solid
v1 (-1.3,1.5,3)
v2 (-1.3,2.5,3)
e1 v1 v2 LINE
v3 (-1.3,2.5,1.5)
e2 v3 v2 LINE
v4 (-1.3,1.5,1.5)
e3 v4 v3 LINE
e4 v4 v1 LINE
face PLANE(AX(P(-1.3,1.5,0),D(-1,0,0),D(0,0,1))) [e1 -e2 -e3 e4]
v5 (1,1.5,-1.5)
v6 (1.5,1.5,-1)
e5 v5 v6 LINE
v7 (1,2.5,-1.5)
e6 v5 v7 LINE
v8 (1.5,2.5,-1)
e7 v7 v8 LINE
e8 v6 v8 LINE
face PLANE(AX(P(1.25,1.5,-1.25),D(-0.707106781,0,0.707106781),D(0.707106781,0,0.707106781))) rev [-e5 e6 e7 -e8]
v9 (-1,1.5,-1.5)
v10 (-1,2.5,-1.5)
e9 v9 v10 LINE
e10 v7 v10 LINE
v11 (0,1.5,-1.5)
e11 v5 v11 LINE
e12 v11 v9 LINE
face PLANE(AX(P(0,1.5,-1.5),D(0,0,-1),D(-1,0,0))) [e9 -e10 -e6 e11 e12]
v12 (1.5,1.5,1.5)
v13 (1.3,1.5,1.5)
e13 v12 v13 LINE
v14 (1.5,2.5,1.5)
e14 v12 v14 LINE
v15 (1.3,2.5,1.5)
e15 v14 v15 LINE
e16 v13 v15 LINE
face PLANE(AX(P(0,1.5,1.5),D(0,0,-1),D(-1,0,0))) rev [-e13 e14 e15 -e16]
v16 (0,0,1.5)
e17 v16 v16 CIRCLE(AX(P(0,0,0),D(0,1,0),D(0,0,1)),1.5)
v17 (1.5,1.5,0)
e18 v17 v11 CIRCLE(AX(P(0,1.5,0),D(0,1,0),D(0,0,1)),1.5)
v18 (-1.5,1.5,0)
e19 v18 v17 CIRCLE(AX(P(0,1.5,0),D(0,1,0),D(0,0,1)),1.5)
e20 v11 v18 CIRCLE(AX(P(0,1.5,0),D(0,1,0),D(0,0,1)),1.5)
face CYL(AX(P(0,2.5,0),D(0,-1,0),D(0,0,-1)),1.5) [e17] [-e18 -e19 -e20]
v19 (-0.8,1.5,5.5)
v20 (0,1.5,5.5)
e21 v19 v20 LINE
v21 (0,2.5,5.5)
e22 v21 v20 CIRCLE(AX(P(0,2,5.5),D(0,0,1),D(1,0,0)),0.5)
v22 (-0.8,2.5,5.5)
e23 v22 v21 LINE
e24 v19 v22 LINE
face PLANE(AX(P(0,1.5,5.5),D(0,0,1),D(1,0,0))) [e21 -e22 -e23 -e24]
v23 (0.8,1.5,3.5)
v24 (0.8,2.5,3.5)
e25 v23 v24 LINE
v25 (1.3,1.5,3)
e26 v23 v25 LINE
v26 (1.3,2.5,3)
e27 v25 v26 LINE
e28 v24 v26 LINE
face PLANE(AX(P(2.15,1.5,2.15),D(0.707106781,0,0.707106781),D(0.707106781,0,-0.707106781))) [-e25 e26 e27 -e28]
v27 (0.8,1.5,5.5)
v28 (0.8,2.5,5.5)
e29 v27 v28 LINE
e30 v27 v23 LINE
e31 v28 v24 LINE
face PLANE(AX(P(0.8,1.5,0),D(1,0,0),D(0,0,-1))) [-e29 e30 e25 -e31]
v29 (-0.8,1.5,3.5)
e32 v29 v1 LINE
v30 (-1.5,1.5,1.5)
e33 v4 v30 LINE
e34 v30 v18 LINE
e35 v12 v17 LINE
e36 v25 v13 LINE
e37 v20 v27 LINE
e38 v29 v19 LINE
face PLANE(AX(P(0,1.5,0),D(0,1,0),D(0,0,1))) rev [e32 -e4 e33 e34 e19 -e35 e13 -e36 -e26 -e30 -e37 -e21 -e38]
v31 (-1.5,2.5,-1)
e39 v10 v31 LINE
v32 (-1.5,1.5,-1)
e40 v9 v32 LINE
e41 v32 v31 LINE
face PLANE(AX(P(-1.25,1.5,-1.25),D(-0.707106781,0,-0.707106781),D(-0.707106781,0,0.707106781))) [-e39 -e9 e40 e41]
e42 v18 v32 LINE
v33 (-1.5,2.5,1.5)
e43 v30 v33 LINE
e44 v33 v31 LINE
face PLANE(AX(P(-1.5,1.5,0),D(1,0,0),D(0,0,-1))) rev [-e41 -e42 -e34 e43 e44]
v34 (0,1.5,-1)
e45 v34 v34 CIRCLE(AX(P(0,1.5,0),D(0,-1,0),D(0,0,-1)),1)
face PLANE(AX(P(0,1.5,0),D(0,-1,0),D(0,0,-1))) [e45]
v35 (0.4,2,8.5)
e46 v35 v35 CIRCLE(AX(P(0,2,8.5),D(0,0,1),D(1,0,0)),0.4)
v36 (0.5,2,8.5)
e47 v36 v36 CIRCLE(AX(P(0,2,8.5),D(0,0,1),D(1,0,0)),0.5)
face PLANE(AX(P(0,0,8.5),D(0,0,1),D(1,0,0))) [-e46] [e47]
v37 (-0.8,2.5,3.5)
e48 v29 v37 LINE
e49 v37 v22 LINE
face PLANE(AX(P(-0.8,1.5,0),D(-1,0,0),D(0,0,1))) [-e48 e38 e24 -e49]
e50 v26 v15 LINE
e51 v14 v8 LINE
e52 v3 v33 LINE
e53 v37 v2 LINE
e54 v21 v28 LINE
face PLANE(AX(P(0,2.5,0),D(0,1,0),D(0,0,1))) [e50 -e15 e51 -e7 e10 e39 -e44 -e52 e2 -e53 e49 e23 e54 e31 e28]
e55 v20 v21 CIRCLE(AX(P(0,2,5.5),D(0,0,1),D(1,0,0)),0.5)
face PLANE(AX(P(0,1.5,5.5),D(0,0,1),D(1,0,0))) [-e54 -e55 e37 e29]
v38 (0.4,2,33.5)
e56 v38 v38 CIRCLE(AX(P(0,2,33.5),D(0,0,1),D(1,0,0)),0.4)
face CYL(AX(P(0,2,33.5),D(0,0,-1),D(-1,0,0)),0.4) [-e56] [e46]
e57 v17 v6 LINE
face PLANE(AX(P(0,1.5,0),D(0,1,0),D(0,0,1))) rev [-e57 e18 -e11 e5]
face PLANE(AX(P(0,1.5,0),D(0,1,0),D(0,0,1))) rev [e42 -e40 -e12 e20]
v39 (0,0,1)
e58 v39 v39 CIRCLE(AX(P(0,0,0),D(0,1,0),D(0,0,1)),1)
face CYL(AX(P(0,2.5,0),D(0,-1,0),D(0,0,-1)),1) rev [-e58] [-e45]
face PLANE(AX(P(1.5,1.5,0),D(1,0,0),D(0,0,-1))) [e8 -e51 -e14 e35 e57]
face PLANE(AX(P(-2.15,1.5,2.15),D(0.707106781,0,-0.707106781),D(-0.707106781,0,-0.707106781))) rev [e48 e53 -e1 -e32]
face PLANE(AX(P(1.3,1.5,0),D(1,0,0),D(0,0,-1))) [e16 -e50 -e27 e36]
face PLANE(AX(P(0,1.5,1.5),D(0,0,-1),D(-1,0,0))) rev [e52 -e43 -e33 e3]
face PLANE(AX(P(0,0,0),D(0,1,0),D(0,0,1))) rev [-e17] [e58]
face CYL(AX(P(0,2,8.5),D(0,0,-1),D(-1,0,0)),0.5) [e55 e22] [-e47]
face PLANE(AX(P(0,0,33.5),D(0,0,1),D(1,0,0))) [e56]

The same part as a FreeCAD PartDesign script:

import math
import FreeCAD as App
import Part
import Sketcher
from FreeCAD import Vector
Q = App.Units.Quantity


def add_polygon(sketch, points):
    """Adds a closed chain of lines whose ends are joined by coincident constraints."""
    first, n = sketch.GeometryCount, len(points)
    for a, b in zip(points, points[1:] + points[:1]):
        sketch.addGeometry(Part.LineSegment(App.Vector(*a, 0), App.Vector(*b, 0)), False)
    for i in range(n):
        sketch.addConstraint(Sketcher.Constraint("Coincident", first + i, 2, first + (i + 1) % n, 1))

doc = App.newDocument("Part")
params = doc.addObject("Spreadsheet::Sheet", "Params")
for row, (alias, value) in enumerate([
    ("sketch1_diameter", "3 mm"),
    ("sketch1_diameter2", "2 mm"),
    ("pad1_length", "2.5 mm"),
    ("sketch2_diameter", "2 mm"),
    ("sketch2_width", "2 mm"),
    ("sketch2_width2", "0.2 mm"),
    ("sketch2_height", "1.5 mm"),
    ("sketch2_height2", "2.5 mm"),
    ("pad2_length", "1 mm"),
    ("sketch3_diameter", "0.8 mm"),
    ("sketch3_radius", "0.5 mm"),
    ("pad3_length", "3 mm"),
    ("sketch4_diameter", "0.8 mm"),
    ("pad4_length", "28 mm"),
    ("sketch5_width", "2 mm"),
    ("sketch5_width2", "0.2 mm"),
    ("sketch5_height", "2.5 mm"),
    ("sketch5_height2", "1.5 mm"),
    ("pad5_length", "1 mm"),
], start=1):
    params.set(f"A{row}", alias)
    params.set(f"B{row}", "=" + value)
    params.setAlias(f"B{row}", alias)

body = doc.addObject("PartDesign::Body", "Body")

# Sketch on XZ plane
sketch1 = doc.addObject("Sketcher::SketchObject", "Sketch")
body.addObject(sketch1)
sketch1.AttachmentSupport = (doc.XZ_Plane, [""])
sketch1.MapMode = "FlatFace"
sketch1.addGeometry(Part.Circle(Vector(0, 0, 0), Vector(0, 0, 1), 1.5), False)
sketch1.addGeometry(Part.Circle(Vector(0, 0, 0), Vector(0, 0, 1), 1), False)
sketch1.addConstraint(Sketcher.Constraint("Coincident", 0, 3, -1, 1))
sketch1.addConstraint(Sketcher.Constraint("Coincident", 1, 3, -1, 1))
sketch1.addConstraint(Sketcher.Constraint("Diameter", 0, Q("3 mm")))
sketch1.addConstraint(Sketcher.Constraint("Diameter", 1, Q("2 mm")))
sketch1.setExpression("Constraints[2]", "Params.sketch1_diameter")
sketch1.setExpression("Constraints[3]", "Params.sketch1_diameter2")
pad1 = doc.addObject("PartDesign::Pad", "Pad")
body.addObject(pad1)
pad1.Profile = sketch1
pad1.setExpression("Length", "Params.pad1_length")
pad1.Reversed = True

# Sketch on XZ plane
sketch2 = doc.addObject("Sketcher::SketchObject", "Sketch001")
body.addObject(sketch2)
sketch2.AttachmentSupport = (doc.XZ_Plane, [""])
sketch2.MapMode = "FlatFace"
sketch2.AttachmentOffset = App.Placement(Vector(0, 0, -2.5), App.Rotation())
add_polygon(sketch2, [(-1.5, 1.5), (-1.3, 1.5), (-1.3, 3), (-0.8, 3.5), (-0.8, 5.5), (0.8, 5.5), (0.8, 3.5), (1.3, 3), (1.3, 1.5), (1.5, 1.5), (1.5, -1), (1, -1.5), (-1, -1.5), (-1.5, -1)])  # lines 0-13
sketch2.addGeometry(Part.Circle(Vector(0, 0, 0), Vector(0, 0, 1), 1), False)  # 14
sketch2.addConstraint(Sketcher.Constraint("Horizontal", 0))
sketch2.addConstraint(Sketcher.Constraint("Vertical", 1))
sketch2.addConstraint(Sketcher.Constraint("Vertical", 3))
sketch2.addConstraint(Sketcher.Constraint("Horizontal", 4))
sketch2.addConstraint(Sketcher.Constraint("Vertical", 5))
sketch2.addConstraint(Sketcher.Constraint("Vertical", 7))
sketch2.addConstraint(Sketcher.Constraint("Horizontal", 8))
sketch2.addConstraint(Sketcher.Constraint("Vertical", 9))
sketch2.addConstraint(Sketcher.Constraint("Horizontal", 11))
sketch2.addConstraint(Sketcher.Constraint("Vertical", 13))
sketch2.addConstraint(Sketcher.Constraint("Coincident", 14, 3, -1, 1))
sketch2.addConstraint(Sketcher.Constraint("Symmetric", 2, 2, 5, 2, -2))
sketch2.addConstraint(Sketcher.Constraint("Symmetric", 1, 2, 6, 2, -2))
sketch2.addConstraint(Sketcher.Constraint("Symmetric", 9, 2, 12, 2, -2))
sketch2.addConstraint(Sketcher.Constraint("Perpendicular", 2, 6))
sketch2.addConstraint(Sketcher.Constraint("Perpendicular", 6, 10))
sketch2.addConstraint(Sketcher.Constraint("Perpendicular", 10, 12))
sketch2.addConstraint(Sketcher.Constraint("Horizontal", 0, 2, 7, 2))
sketch2.addConstraint(Sketcher.Constraint("Equal", 11, 3))
sketch2.addConstraint(Sketcher.Constraint("Equal", 6, 10))
sketch2.addConstraint(Sketcher.Constraint("Diameter", 14, Q("2 mm")))
sketch2.addConstraint(Sketcher.Constraint("DistanceX", 11, 2, 11, 1, Q("2 mm")))
sketch2.addConstraint(Sketcher.Constraint("DistanceX", 0, 1, 0, 2, Q("0.2 mm")))
sketch2.addConstraint(Sketcher.Constraint("DistanceY", 1, 1, 1, 2, Q("1.5 mm")))
sketch2.addConstraint(Sketcher.Constraint("DistanceY", 9, 2, 9, 1, Q("2.5 mm")))
sketch2.addConstraint(Sketcher.Constraint("DistanceY", -1, 1, 1, 2, Q("3 mm")))
sketch2.addConstraint(Sketcher.Constraint("DistanceY", 0, 2, 2, 2, Q("2 mm")))
sketch2.setExpression("Constraints[34]", "Params.sketch2_diameter")
sketch2.setExpression("Constraints[35]", "Params.sketch2_width")
sketch2.setExpression("Constraints[36]", "Params.sketch2_width2")
sketch2.setExpression("Constraints[37]", "Params.sketch2_height")
sketch2.setExpression("Constraints[38]", "Params.sketch2_height2")
pad2 = doc.addObject("PartDesign::Pad", "Pad001")
body.addObject(pad2)
pad2.Profile = sketch2
pad2.setExpression("Length", "Params.pad2_length")

# Sketch on XY plane
sketch3 = doc.addObject("Sketcher::SketchObject", "Sketch002")
body.addObject(sketch3)
sketch3.AttachmentSupport = (doc.XY_Plane, [""])
sketch3.MapMode = "FlatFace"
sketch3.AttachmentOffset = App.Placement(Vector(0, 0, 5.5), App.Rotation())
sketch3.addGeometry(Part.ArcOfCircle(Part.Circle(Vector(0, 2, 0), Vector(0, 0, 1), 0.5), math.radians(180), math.radians(270)), False)
sketch3.addGeometry(Part.ArcOfCircle(Part.Circle(Vector(0, 2, 0), Vector(0, 0, 1), 0.5), math.radians(-90), math.radians(0)), False)
sketch3.addGeometry(Part.ArcOfCircle(Part.Circle(Vector(0, 2, 0), Vector(0, 0, 1), 0.5), math.radians(0), math.radians(90)), False)
sketch3.addGeometry(Part.ArcOfCircle(Part.Circle(Vector(0, 2, 0), Vector(0, 0, 1), 0.5), math.radians(90), math.radians(180)), False)
sketch3.addGeometry(Part.Circle(Vector(0, 2, 0), Vector(0, 0, 1), 0.4), False)
sketch3.addConstraint(Sketcher.Constraint("Tangent", 0, 2, 1, 1))
sketch3.addConstraint(Sketcher.Constraint("Tangent", 1, 2, 2, 1))
sketch3.addConstraint(Sketcher.Constraint("Tangent", 2, 2, 3, 1))
sketch3.addConstraint(Sketcher.Constraint("Tangent", 3, 2, 0, 1))
sketch3.addConstraint(Sketcher.Constraint("Coincident", 4, 3, 0, 3))
sketch3.addConstraint(Sketcher.Constraint("Equal", 0, 1))
sketch3.addConstraint(Sketcher.Constraint("Symmetric", 1, 2, 3, 2, -2))
sketch3.addConstraint(Sketcher.Constraint("PointOnObject", 0, 2, -2))
sketch3.addConstraint(Sketcher.Constraint("PointOnObject", 2, 2, -2))
sketch3.addConstraint(Sketcher.Constraint("Horizontal", 4, 3, 1, 2))
sketch3.addConstraint(Sketcher.Constraint("Diameter", 4, Q("0.8 mm")))
sketch3.addConstraint(Sketcher.Constraint("Radius", 0, Q("0.5 mm")))
sketch3.addConstraint(Sketcher.Constraint("DistanceY", -1, 1, 0, 3, Q("2 mm")))
sketch3.setExpression("Constraints[10]", "Params.sketch3_diameter")
sketch3.setExpression("Constraints[11]", "Params.sketch3_radius")
pad3 = doc.addObject("PartDesign::Pad", "Pad002")
body.addObject(pad3)
pad3.Profile = sketch3
pad3.setExpression("Length", "Params.pad3_length")

# Sketch on XY plane
sketch4 = doc.addObject("Sketcher::SketchObject", "Sketch003")
body.addObject(sketch4)
sketch4.AttachmentSupport = (doc.XY_Plane, [""])
sketch4.MapMode = "FlatFace"
sketch4.AttachmentOffset = App.Placement(Vector(0, 0, 5.5), App.Rotation())
sketch4.addGeometry(Part.Circle(Vector(0, 2, 0), Vector(0, 0, 1), 0.4), False)
sketch4.addConstraint(Sketcher.Constraint("PointOnObject", 0, 3, -2))
sketch4.addConstraint(Sketcher.Constraint("Diameter", 0, Q("0.8 mm")))
sketch4.addConstraint(Sketcher.Constraint("DistanceY", -1, 1, 0, 3, Q("2 mm")))
sketch4.setExpression("Constraints[1]", "Params.sketch4_diameter")
pad4 = doc.addObject("PartDesign::Pad", "Pad003")
body.addObject(pad4)
pad4.Profile = sketch4
pad4.setExpression("Length", "Params.pad4_length")

# Sketch on XZ plane
sketch5 = doc.addObject("Sketcher::SketchObject", "Sketch004")
body.addObject(sketch5)
sketch5.AttachmentSupport = (doc.XZ_Plane, [""])
sketch5.MapMode = "FlatFace"
sketch5.AttachmentOffset = App.Placement(Vector(0, 0, -2.5), App.Rotation())
add_polygon(sketch5, [(1.3, 1.5), (1.5, 1.5), (1.5, -1), (1, -1.5), (-1, -1.5), (-1.5, -1), (-1.5, 1.5), (-1.3, 1.5), (-1.3, 3), (-0.8, 3.5), (-0.8, 5.5), (0.8, 5.5), (0.8, 3.5), (1.3, 3)])  # lines 0-13
sketch5.addConstraint(Sketcher.Constraint("Horizontal", 0))
sketch5.addConstraint(Sketcher.Constraint("Vertical", 1))
sketch5.addConstraint(Sketcher.Constraint("Horizontal", 3))
sketch5.addConstraint(Sketcher.Constraint("Vertical", 5))
sketch5.addConstraint(Sketcher.Constraint("Horizontal", 6))
sketch5.addConstraint(Sketcher.Constraint("Vertical", 7))
sketch5.addConstraint(Sketcher.Constraint("Vertical", 9))
sketch5.addConstraint(Sketcher.Constraint("Horizontal", 10))
sketch5.addConstraint(Sketcher.Constraint("Vertical", 11))
sketch5.addConstraint(Sketcher.Constraint("Vertical", 13))
sketch5.addConstraint(Sketcher.Constraint("Symmetric", 1, 2, 4, 2, -2))
sketch5.addConstraint(Sketcher.Constraint("Symmetric", 8, 2, 11, 2, -2))
sketch5.addConstraint(Sketcher.Constraint("Symmetric", 7, 2, 12, 2, -2))
sketch5.addConstraint(Sketcher.Constraint("Perpendicular", 2, 4))
sketch5.addConstraint(Sketcher.Constraint("Perpendicular", 4, 8))
sketch5.addConstraint(Sketcher.Constraint("Perpendicular", 8, 12))
sketch5.addConstraint(Sketcher.Constraint("Horizontal", 0, 2, 5, 2))
sketch5.addConstraint(Sketcher.Constraint("Equal", 3, 9))
sketch5.addConstraint(Sketcher.Constraint("Equal", 4, 8))
sketch5.addConstraint(Sketcher.Constraint("DistanceX", 3, 2, 3, 1, Q("2 mm")))
sketch5.addConstraint(Sketcher.Constraint("DistanceX", 0, 1, 0, 2, Q("0.2 mm")))
sketch5.addConstraint(Sketcher.Constraint("DistanceY", 1, 2, 1, 1, Q("2.5 mm")))
sketch5.addConstraint(Sketcher.Constraint("DistanceY", 7, 1, 7, 2, Q("1.5 mm")))
sketch5.addConstraint(Sketcher.Constraint("DistanceY", 1, 2, -1, 1, Q("1 mm")))
sketch5.addConstraint(Sketcher.Constraint("DistanceY", 2, 2, 0, 2, Q("3 mm")))
sketch5.setExpression("Constraints[33]", "Params.sketch5_width")
sketch5.setExpression("Constraints[34]", "Params.sketch5_width2")
sketch5.setExpression("Constraints[35]", "Params.sketch5_height")
sketch5.setExpression("Constraints[36]", "Params.sketch5_height2")
pad5 = doc.addObject("PartDesign::Pad", "Pad004")
body.addObject(pad5)
pad5.Profile = sketch5
pad5.setExpression("Length", "Params.pad5_length")

doc.recompute()
